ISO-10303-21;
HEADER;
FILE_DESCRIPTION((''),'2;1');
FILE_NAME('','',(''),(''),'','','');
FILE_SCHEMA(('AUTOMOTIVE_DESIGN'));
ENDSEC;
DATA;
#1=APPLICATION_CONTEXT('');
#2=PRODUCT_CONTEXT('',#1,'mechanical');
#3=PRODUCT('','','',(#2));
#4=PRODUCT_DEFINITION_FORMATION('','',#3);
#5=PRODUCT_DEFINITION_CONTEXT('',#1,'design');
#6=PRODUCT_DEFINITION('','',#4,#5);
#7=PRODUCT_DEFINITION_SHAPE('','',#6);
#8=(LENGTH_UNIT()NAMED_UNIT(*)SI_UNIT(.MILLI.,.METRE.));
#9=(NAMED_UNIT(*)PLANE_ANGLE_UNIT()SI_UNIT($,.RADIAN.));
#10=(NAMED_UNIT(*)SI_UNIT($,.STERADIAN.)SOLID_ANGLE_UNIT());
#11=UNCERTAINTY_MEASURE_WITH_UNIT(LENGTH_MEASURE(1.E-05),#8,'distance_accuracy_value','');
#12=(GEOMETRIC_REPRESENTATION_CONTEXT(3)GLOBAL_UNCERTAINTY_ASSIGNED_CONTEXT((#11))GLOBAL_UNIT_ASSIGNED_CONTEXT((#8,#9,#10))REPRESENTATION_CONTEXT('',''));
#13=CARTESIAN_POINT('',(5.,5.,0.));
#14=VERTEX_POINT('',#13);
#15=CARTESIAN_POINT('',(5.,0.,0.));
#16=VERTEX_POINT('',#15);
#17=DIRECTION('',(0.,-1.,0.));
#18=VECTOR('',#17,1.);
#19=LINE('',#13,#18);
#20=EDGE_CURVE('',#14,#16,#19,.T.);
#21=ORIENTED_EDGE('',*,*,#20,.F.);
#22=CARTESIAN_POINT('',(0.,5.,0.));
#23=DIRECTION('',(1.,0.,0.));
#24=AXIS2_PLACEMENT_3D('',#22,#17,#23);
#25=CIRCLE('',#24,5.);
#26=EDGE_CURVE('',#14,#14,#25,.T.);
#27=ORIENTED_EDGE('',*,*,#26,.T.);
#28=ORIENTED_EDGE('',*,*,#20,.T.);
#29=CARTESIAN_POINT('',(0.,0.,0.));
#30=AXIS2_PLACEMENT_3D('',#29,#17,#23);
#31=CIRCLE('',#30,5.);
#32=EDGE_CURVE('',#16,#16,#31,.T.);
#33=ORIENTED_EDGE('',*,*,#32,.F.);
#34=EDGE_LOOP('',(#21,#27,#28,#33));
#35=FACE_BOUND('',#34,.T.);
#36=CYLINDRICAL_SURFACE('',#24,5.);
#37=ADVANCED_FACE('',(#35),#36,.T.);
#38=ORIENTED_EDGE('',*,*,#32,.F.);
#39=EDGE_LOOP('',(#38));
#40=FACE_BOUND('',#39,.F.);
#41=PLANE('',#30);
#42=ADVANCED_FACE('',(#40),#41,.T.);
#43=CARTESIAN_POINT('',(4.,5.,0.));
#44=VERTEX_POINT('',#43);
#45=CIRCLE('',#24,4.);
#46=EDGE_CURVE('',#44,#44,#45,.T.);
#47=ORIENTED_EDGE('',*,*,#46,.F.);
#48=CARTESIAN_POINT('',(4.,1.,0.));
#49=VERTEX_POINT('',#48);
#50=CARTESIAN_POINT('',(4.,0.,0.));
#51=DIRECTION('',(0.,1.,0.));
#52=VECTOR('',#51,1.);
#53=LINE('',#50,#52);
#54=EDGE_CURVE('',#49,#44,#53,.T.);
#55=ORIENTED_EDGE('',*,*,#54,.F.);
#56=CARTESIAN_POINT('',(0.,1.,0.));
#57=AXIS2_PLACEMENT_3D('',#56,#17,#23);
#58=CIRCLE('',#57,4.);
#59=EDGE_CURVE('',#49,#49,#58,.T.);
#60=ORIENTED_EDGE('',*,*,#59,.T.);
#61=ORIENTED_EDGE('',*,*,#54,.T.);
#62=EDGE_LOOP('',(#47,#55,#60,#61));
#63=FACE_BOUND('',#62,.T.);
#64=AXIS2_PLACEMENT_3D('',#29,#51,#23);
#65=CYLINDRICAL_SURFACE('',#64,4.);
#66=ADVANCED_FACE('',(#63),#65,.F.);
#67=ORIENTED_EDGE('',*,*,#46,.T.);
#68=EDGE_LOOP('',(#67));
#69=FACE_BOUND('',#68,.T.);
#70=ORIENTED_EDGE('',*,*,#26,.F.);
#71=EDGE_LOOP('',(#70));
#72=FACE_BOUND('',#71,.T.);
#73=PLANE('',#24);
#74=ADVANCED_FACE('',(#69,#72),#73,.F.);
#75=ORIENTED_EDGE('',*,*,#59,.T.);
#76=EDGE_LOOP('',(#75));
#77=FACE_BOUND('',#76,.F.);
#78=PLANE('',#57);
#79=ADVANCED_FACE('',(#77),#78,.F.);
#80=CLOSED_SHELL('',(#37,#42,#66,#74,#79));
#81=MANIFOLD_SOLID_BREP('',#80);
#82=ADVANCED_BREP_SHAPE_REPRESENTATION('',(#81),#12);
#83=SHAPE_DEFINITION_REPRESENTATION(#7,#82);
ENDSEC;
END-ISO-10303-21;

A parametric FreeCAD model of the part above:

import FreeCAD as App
import Part
import Sketcher
from FreeCAD import Vector
Q = App.Units.Quantity


def add_polygon(sketch, points):
    """Adds a closed chain of lines whose ends are joined by coincident constraints."""
    first, n = sketch.GeometryCount, len(points)
    for a, b in zip(points, points[1:] + points[:1]):
        sketch.addGeometry(Part.LineSegment(App.Vector(*a, 0), App.Vector(*b, 0)), False)
    for i in range(n):
        sketch.addConstraint(Sketcher.Constraint("Coincident", first + i, 2, first + (i + 1) % n, 1))

doc = App.newDocument("Part")
body = doc.addObject("PartDesign::Body", "Body")

# Sketch on XY plane
sketch1 = body.newObject("Sketcher::SketchObject", "Sketch")
sketch1.AttachmentSupport = (doc.getObject("XY_Plane"), [""])
sketch1.MapMode = "FlatFace"
add_polygon(sketch1, [(0, 1), (0, 0), (5, 0), (5, 5), (4, 5), (4, 1)])  # lines 0-5
sketch1.addConstraint([
    Sketcher.Constraint("Vertical", 0),
    Sketcher.Constraint("Horizontal", 1),
    Sketcher.Constraint("Vertical", 2),
    Sketcher.Constraint("Horizontal", 3),
    Sketcher.Constraint("Vertical", 4),
    Sketcher.Constraint("Horizontal", 5),
    Sketcher.Constraint("Coincident", 0, 2, -1, 1),
    Sketcher.Constraint("Equal", 3, 0),
    Sketcher.Constraint("Equal", 1, 2),
    Sketcher.Constraint("DistanceX", 1, 1, 1, 2, Q("5 mm")),
    Sketcher.Constraint("DistanceX", 3, 2, 3, 1, Q("1 mm")),
])
revolution = body.newObject("PartDesign::Revolution", "Revolution")
revolution.Profile = sketch1
revolution.ReferenceAxis = (sketch1, ["V_Axis"])
revolution.Angle = 360

doc.recompute()
